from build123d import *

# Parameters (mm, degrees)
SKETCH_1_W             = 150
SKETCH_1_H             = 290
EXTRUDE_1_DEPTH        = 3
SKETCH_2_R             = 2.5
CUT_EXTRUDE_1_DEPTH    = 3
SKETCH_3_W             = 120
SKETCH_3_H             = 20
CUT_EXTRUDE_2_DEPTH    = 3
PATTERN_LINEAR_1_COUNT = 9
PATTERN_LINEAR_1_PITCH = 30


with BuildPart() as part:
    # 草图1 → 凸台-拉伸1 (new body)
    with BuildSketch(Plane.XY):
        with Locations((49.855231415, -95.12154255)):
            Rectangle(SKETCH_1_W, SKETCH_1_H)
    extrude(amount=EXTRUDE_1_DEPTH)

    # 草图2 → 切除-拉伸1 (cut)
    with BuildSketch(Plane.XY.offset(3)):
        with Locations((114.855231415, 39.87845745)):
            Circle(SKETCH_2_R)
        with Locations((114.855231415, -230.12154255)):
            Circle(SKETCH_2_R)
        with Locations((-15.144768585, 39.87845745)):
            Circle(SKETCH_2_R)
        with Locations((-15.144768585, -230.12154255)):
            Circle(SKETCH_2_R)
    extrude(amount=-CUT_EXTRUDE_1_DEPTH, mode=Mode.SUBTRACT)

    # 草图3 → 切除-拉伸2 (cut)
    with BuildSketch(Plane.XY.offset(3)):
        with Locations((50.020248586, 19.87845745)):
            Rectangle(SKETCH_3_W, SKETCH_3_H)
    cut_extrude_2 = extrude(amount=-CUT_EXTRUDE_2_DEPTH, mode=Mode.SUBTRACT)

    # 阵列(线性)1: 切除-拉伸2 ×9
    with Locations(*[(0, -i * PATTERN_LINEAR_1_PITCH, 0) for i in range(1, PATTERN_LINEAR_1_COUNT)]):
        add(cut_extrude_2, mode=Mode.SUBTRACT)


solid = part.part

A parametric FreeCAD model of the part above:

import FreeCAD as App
import Part
import Sketcher

V = App.Vector
Q = App.Units.Quantity

doc = App.newDocument("Part")
params = doc.addObject("Spreadsheet::Sheet", "Params")
for row, (alias, value) in enumerate([
    ("sketch1_width", "150 mm"),
    ("sketch1_height", "290 mm"),
    ("pad1_length", "3 mm"),
    ("sketch2_diameter", "5 mm"),
    ("pocket1_length", "3 mm"),
    ("sketch3_width", "120 mm"),
    ("sketch3_height", "20 mm"),
    ("pocket2_length", "3 mm"),
    ("linearpattern_pitch", "30 mm"),
], start=1):
    params.set(f"A{row}", alias)
    params.set(f"B{row}", "=" + value)
    params.setAlias(f"B{row}", alias)

body = doc.addObject("PartDesign::Body", "Body")

# Sketch on XY plane
sketch1 = body.newObject("Sketcher::SketchObject", "Sketch")
sketch1.AttachmentSupport = (doc.getObject("XY_Plane"), [""])
sketch1.MapMode = "FlatFace"
sketch1.addGeometry([
    Part.LineSegment(V(-25, 50, 0), V(-25, -240, 0)),
    Part.LineSegment(V(-25, -240, 0), V(125, -240, 0)),
    Part.LineSegment(V(125, -240, 0), V(125, 50, 0)),
    Part.LineSegment(V(125, 50, 0), V(-25, 50, 0)),
], False)
sketch1.addConstraint([
    Sketcher.Constraint("Coincident", 0, 2, 1, 1),
    Sketcher.Constraint("Coincident", 1, 2, 2, 1),
    Sketcher.Constraint("Coincident", 2, 2, 3, 1),
    Sketcher.Constraint("Coincident", 3, 2, 0, 1),
    Sketcher.Constraint("Vertical", 0),
    Sketcher.Constraint("Horizontal", 1),
    Sketcher.Constraint("Vertical", 2),
    Sketcher.Constraint("Horizontal", 3),
    Sketcher.Constraint("DistanceX", 1, 1, 1, 2, Q("150 mm")),
    Sketcher.Constraint("DistanceY", 0, 2, 0, 1, Q("290 mm")),
    Sketcher.Constraint("DistanceX", 0, 2, -1, 1, Q("25.144769 mm")),
    Sketcher.Constraint("DistanceY", 0, 2, -1, 1, Q("240.121543 mm")),
])
sketch1.setExpression("Constraints[8]", "Params.sketch1_width")
sketch1.setExpression("Constraints[9]", "Params.sketch1_height")
pad1 = body.newObject("PartDesign::Pad", "Pad")
pad1.Profile = sketch1
pad1.setExpression("Length", "Params.pad1_length")

# Sketch on XY plane
sketch2 = body.newObject("Sketcher::SketchObject", "Sketch001")
sketch2.AttachmentSupport = (doc.getObject("XY_Plane"), [""])
sketch2.MapMode = "FlatFace"
sketch2.AttachmentOffset = App.Placement(V(0, 0, 3), App.Rotation())
sketch2.addGeometry([
    Part.Circle(V(114.9, 39.9, 0), V(0, 0, 1), 2.5),
    Part.Circle(V(114.9, -230.1, 0), V(0, 0, 1), 2.5),
    Part.Circle(V(-15.1, 39.9, 0), V(0, 0, 1), 2.5),
    Part.Circle(V(-15.1, -230.1, 0), V(0, 0, 1), 2.5),
], False)
sketch2.addConstraint([
    Sketcher.Constraint("Equal", 0, 1),
    Sketcher.Constraint("Equal", 1, 2),
    Sketcher.Constraint("Equal", 2, 3),
    Sketcher.Constraint("Horizontal", 0, 3, 2, 3),
    Sketcher.Constraint("Horizontal", 1, 3, 3, 3),
    Sketcher.Constraint("Vertical", 0, 3, 1, 3),
    Sketcher.Constraint("Vertical", 2, 3, 3, 3),
    Sketcher.Constraint("Diameter", 0, Q("5 mm")),
    Sketcher.Constraint("DistanceY", 1, 3, 0, 3, Q("270 mm")),
    Sketcher.Constraint("DistanceX", 2, 3, 0, 3, Q("130 mm")),
    Sketcher.Constraint("DistanceX", -1, 1, 0, 3, Q("114.855231 mm")),
    Sketcher.Constraint("DistanceY", -1, 1, 0, 3, Q("39.878457 mm")),
])
sketch2.setExpression("Constraints[7]", "Params.sketch2_diameter")
pocket1 = body.newObject("PartDesign::Pocket", "Pocket")
pocket1.Profile = sketch2
pocket1.setExpression("Length", "Params.pocket1_length")

# Sketch on XY plane
sketch3 = body.newObject("Sketcher::SketchObject", "Sketch002")
sketch3.AttachmentSupport = (doc.getObject("XY_Plane"), [""])
sketch3.MapMode = "FlatFace"
sketch3.AttachmentOffset = App.Placement(V(0, 0, 3), App.Rotation())
sketch3.addGeometry([
    Part.LineSegment(V(-10, 30, 0), V(-10, 10, 0)),
    Part.LineSegment(V(-10, 10, 0), V(110, 10, 0)),
    Part.LineSegment(V(110, 10, 0), V(110, 30, 0)),
    Part.LineSegment(V(110, 30, 0), V(-10, 30, 0)),
], False)
sketch3.addConstraint([
    Sketcher.Constraint("Coincident", 0, 2, 1, 1),
    Sketcher.Constraint("Coincident", 1, 2, 2, 1),
    Sketcher.Constraint("Coincident", 2, 2, 3, 1),
    Sketcher.Constraint("Coincident", 3, 2, 0, 1),
    Sketcher.Constraint("Vertical", 0),
    Sketcher.Constraint("Horizontal", 1),
    Sketcher.Constraint("Vertical", 2),
    Sketcher.Constraint("Horizontal", 3),
    Sketcher.Constraint("DistanceX", 1, 1, 1, 2, Q("120 mm")),
    Sketcher.Constraint("DistanceY", 0, 2, 0, 1, Q("20 mm")),
    Sketcher.Constraint("DistanceX", 0, 2, -1, 1, Q("9.979751 mm")),
    Sketcher.Constraint("DistanceY", -1, 1, 0, 2, Q("9.878457 mm")),
])
sketch3.setExpression("Constraints[8]", "Params.sketch3_width")
sketch3.setExpression("Constraints[9]", "Params.sketch3_height")
pocket2 = body.newObject("PartDesign::Pocket", "Pocket001")
pocket2.Profile = sketch3
pocket2.setExpression("Length", "Params.pocket2_length")
doc.recompute()

linearpattern = body.newObject("PartDesign::LinearPattern", "LinearPattern")
linearpattern.Originals = [pocket2]
linearpattern.Direction = (doc.getObject("Y_Axis"), [""])
linearpattern.Mode = "offset"
linearpattern.setExpression("Offset", "Params.linearpattern_pitch")
linearpattern.Occurrences = 9
linearpattern.Reversed = True
body.Tip = linearpattern

doc.recompute()
